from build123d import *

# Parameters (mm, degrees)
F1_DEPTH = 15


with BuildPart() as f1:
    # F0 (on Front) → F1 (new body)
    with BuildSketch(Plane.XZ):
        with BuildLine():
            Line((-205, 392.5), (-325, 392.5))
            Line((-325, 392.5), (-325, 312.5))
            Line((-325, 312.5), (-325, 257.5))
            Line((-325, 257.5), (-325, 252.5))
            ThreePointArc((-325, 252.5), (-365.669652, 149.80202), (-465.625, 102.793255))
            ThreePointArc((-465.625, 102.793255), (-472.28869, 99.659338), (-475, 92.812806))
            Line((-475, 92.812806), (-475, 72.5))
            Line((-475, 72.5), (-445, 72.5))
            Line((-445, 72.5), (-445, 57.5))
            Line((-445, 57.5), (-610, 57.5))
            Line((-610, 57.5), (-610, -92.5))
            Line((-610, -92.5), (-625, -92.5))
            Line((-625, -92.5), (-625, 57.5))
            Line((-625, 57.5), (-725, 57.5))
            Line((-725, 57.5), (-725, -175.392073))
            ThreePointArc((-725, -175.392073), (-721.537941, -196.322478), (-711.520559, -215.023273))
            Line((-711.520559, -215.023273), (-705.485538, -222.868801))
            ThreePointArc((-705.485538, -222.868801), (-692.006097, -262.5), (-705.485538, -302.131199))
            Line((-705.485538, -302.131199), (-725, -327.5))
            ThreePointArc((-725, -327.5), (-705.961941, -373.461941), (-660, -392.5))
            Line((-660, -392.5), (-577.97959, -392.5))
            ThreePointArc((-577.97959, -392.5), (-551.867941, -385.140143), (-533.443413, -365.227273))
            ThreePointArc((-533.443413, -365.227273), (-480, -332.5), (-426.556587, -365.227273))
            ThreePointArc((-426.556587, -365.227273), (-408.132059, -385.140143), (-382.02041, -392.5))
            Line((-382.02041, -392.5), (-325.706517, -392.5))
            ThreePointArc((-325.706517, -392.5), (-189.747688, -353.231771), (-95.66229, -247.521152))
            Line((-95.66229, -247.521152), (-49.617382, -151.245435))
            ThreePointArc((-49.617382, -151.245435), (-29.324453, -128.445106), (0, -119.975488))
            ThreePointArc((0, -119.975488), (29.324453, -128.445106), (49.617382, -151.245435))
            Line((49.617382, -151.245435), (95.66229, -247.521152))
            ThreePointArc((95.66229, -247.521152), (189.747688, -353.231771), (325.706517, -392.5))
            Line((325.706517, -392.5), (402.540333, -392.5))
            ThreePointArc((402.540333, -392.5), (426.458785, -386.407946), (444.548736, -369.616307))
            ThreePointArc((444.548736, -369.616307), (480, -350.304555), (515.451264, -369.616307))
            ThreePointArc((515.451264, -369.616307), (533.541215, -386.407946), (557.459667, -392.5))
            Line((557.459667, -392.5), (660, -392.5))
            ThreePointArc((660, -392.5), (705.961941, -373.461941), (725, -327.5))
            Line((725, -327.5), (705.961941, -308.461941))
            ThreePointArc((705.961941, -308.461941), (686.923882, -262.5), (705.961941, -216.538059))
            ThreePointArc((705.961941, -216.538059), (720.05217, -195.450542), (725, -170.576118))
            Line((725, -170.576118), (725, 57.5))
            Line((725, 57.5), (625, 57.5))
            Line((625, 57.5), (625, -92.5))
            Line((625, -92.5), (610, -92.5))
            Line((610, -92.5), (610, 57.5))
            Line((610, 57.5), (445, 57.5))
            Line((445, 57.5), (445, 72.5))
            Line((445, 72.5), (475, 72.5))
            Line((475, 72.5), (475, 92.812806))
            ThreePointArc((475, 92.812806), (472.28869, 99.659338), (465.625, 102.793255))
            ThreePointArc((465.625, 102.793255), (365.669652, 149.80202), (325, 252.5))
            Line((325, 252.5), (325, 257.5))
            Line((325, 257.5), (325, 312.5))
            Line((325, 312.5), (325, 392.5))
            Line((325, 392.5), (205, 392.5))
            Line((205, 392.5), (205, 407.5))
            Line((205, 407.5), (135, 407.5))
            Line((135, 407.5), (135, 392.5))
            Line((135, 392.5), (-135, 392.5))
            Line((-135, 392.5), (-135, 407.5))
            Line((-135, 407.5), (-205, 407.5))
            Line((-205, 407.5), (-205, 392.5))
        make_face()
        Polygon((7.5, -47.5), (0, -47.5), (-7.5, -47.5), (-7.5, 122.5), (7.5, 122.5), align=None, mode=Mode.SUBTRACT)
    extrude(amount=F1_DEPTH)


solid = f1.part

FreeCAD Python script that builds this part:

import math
import FreeCAD as App
import Part
import Sketcher

V = App.Vector
Q = App.Units.Quantity


def add_polygon(sketch, points):
    """Adds a closed chain of lines whose ends are joined by coincident constraints."""
    first, n = sketch.GeometryCount, len(points)
    for a, b in zip(points, points[1:] + points[:1]):
        sketch.addGeometry(Part.LineSegment(App.Vector(*a, 0), App.Vector(*b, 0)), False)
    for i in range(n):
        sketch.addConstraint(Sketcher.Constraint("Coincident", first + i, 2, first + (i + 1) % n, 1))

doc = App.newDocument("Part")
params = doc.addObject("Spreadsheet::Sheet", "Params")
for row, (alias, value) in enumerate([
    ("sketch1_radius", "150 mm"),
    ("sketch1_radius2", "9.999999 mm"),
    ("sketch1_radius3", "64.999999 mm"),
    ("sketch1_radius4", "49.999999 mm"),
    ("sketch1_radius5", "60 mm"),
    ("pad1_length", "15 mm"),
], start=1):
    params.set(f"A{row}", alias)
    params.set(f"B{row}", "=" + value)
    params.setAlias(f"B{row}", alias)

body = doc.addObject("PartDesign::Body", "Body")

# Sketch on XZ plane
sketch1 = body.newObject("Sketcher::SketchObject", "Sketch")
sketch1.AttachmentSupport = (doc.getObject("XZ_Plane"), [""])
sketch1.MapMode = "FlatFace"
sketch1.addGeometry(Part.LineSegment(V(-205, 392.5, 0), V(-325, 392.5, 0)), False)  # 0
sketch1.addGeometry(Part.LineSegment(V(-325, 392.5, 0), V(-325, 252.5, 0)), False)  # 1
sketch1.addGeometry(Part.ArcOfCircle(Part.Circle(V(-475, 252.5, 0), V(0, 0, 1), 150), math.radians(-86.416678), math.radians(0)), False)  # 2
sketch1.addGeometry(Part.ArcOfCircle(Part.Circle(V(-465.000001, 92.812807, 0), V(0, 0, 1), 9.999999), math.radians(93.583314), math.radians(180.000004)), False)  # 3
sketch1.addGeometry(Part.LineSegment(V(-475, 92.812806, 0), V(-475, 72.5, 0)), False)  # 4
sketch1.addGeometry(Part.LineSegment(V(-475, 72.5, 0), V(-445, 72.5, 0)), False)  # 5
sketch1.addGeometry(Part.LineSegment(V(-445, 72.5, 0), V(-445, 57.5, 0)), False)  # 6
sketch1.addGeometry(Part.LineSegment(V(-445, 57.5, 0), V(-610, 57.5, 0)), False)  # 7
sketch1.addGeometry(Part.LineSegment(V(-610, 57.5, 0), V(-610, -92.5, 0)), False)  # 8
sketch1.addGeometry(Part.LineSegment(V(-610, -92.5, 0), V(-625, -92.5, 0)), False)  # 9
sketch1.addGeometry(Part.LineSegment(V(-625, -92.5, 0), V(-625, 57.5, 0)), False)  # 10
sketch1.addGeometry(Part.LineSegment(V(-625, 57.5, 0), V(-725, 57.5, 0)), False)  # 11
sketch1.addGeometry(Part.LineSegment(V(-725, 57.5, 0), V(-725, -175.392073, 0)), False)  # 12
sketch1.addGeometry(Part.ArcOfCircle(Part.Circle(V(-660.000004, -175.392075, 0), V(0, 0, 1), 64.999996), math.radians(179.999999), math.radians(217.568594)), False)  # 13
sketch1.addGeometry(Part.LineSegment(V(-711.520559, -215.023273, 0), V(-705.485538, -222.868801, 0)), False)  # 14
sketch1.addGeometry(Part.ArcOfCircle(Part.Circle(V(-757.006095, -262.5, 0), V(0, 0, 1), 64.999998), math.radians(-37.568593), math.radians(37.568593)), False)  # 15
sketch1.addGeometry(Part.LineSegment(V(-705.485538, -302.131199, 0), V(-725, -327.5, 0)), False)  # 16
sketch1.addGeometry(Part.ArcOfCircle(Part.Circle(V(-660.000001, -327.500001, 0), V(0, 0, 1), 64.999999), math.radians(179.999999), math.radians(270.000001)), False)  # 17
sketch1.addGeometry(Part.LineSegment(V(-660, -392.5, 0), V(-577.97959, -392.5, 0)), False)  # 18
sketch1.addGeometry(Part.ArcOfCircle(Part.Circle(V(-577.97959, -342.500001, 0), V(0, 0, 1), 49.999999), math.radians(-90), math.radians(-27.035692)), False)  # 19
sketch1.addGeometry(Part.ArcOfCircle(Part.Circle(V(-480, -392.5, 0), V(0, 0, 1), 60), math.radians(27.035692), math.radians(152.964308)), False)  # 20
sketch1.addGeometry(Part.ArcOfCircle(Part.Circle(V(-382.02041, -342.500001, 0), V(0, 0, 1), 49.999999), math.radians(-152.964308), math.radians(-90)), False)  # 21
sketch1.addGeometry(Part.LineSegment(V(-382.02041, -392.5, 0), V(-325.706517, -392.5, 0)), False)  # 22
sketch1.addGeometry(Part.ArcOfCircle(Part.Circle(V(-325.706516, -137.5, 0), V(0, 0, 1), 255), math.radians(-90), math.radians(-25.559965)), False)  # 23
sketch1.addGeometry(Part.LineSegment(V(-95.66229, -247.521152, 0), V(-49.617382, -151.245435, 0)), False)  # 24
sketch1.addGeometry(Part.ArcOfCircle(Part.Circle(V(0, -174.975489, 0), V(0, 0, 1), 55.000001), math.radians(90), math.radians(154.440034)), False)  # 25
sketch1.addGeometry(Part.ArcOfCircle(Part.Circle(V(0, -174.975489, 0), V(0, 0, 1), 55.000001), math.radians(25.559966), math.radians(90)), False)  # 26
sketch1.addGeometry(Part.LineSegment(V(49.617382, -151.245435, 0), V(95.66229, -247.521152, 0)), False)  # 27
sketch1.addGeometry(Part.ArcOfCircle(Part.Circle(V(325.706516, -137.5, 0), V(0, 0, 1), 255), math.radians(-154.440035), math.radians(-90)), False)  # 28
sketch1.addGeometry(Part.LineSegment(V(325.706517, -392.5, 0), V(402.540333, -392.5, 0)), False)  # 29
sketch1.addGeometry(Part.ArcOfCircle(Part.Circle(V(402.540335, -342.500004, 0), V(0, 0, 1), 49.999996), math.radians(-90.000003), math.radians(-32.842128)), False)  # 30
sketch1.addGeometry(Part.ArcOfCircle(Part.Circle(V(480, -392.499999, 0), V(0, 0, 1), 42.195444), math.radians(32.842129), math.radians(147.157871)), False)  # 31
sketch1.addGeometry(Part.ArcOfCircle(Part.Circle(V(557.459665, -342.500004, 0), V(0, 0, 1), 49.999996), math.radians(-147.157872), math.radians(-89.999997)), False)  # 32
sketch1.addGeometry(Part.LineSegment(V(557.459667, -392.5, 0), V(660, -392.5, 0)), False)  # 33
sketch1.addGeometry(Part.ArcOfCircle(Part.Circle(V(660.000001, -327.500001, 0), V(0, 0, 1), 64.999999), math.radians(-90.000001), math.radians(0.000001)), False)  # 34
sketch1.addGeometry(Part.LineSegment(V(725, -327.5, 0), V(705.961941, -308.461941, 0)), False)  # 35
sketch1.addGeometry(Part.ArcOfCircle(Part.Circle(V(751.923883, -262.5, 0), V(0, 0, 1), 65.000001), math.radians(135.000001), math.radians(224.999999)), False)  # 36
sketch1.addGeometry(Part.ArcOfCircle(Part.Circle(V(660.000006, -170.576121, 0), V(0, 0, 1), 64.999994), math.radians(-45.000002), math.radians(0.000003)), False)  # 37
sketch1.addGeometry(Part.LineSegment(V(725, -170.576118, 0), V(725, 57.5, 0)), False)  # 38
sketch1.addGeometry(Part.LineSegment(V(725, 57.5, 0), V(625, 57.5, 0)), False)  # 39
sketch1.addGeometry(Part.LineSegment(V(625, 57.5, 0), V(625, -92.5, 0)), False)  # 40
sketch1.addGeometry(Part.LineSegment(V(625, -92.5, 0), V(610, -92.5, 0)), False)  # 41
sketch1.addGeometry(Part.LineSegment(V(610, -92.5, 0), V(610, 57.5, 0)), False)  # 42
sketch1.addGeometry(Part.LineSegment(V(610, 57.5, 0), V(445, 57.5, 0)), False)  # 43
sketch1.addGeometry(Part.LineSegment(V(445, 57.5, 0), V(445, 72.5, 0)), False)  # 44
sketch1.addGeometry(Part.LineSegment(V(445, 72.5, 0), V(475, 72.5, 0)), False)  # 45
sketch1.addGeometry(Part.LineSegment(V(475, 72.5, 0), V(475, 92.812806, 0)), False)  # 46
sketch1.addGeometry(Part.ArcOfCircle(Part.Circle(V(465.000001, 92.812807, 0), V(0, 0, 1), 9.999999), math.radians(-0.000004), math.radians(86.416686)), False)  # 47
sketch1.addGeometry(Part.ArcOfCircle(Part.Circle(V(475, 252.5, 0), V(0, 0, 1), 150), math.radians(180), math.radians(266.416678)), False)  # 48
sketch1.addGeometry(Part.LineSegment(V(325, 252.5, 0), V(325, 392.5, 0)), False)  # 49
sketch1.addGeometry(Part.LineSegment(V(325, 392.5, 0), V(205, 392.5, 0)), False)  # 50
sketch1.addGeometry(Part.LineSegment(V(205, 392.5, 0), V(205, 407.5, 0)), False)  # 51
sketch1.addGeometry(Part.LineSegment(V(205, 407.5, 0), V(135, 407.5, 0)), False)  # 52
sketch1.addGeometry(Part.LineSegment(V(135, 407.5, 0), V(135, 392.5, 0)), False)  # 53
sketch1.addGeometry(Part.LineSegment(V(135, 392.5, 0), V(-135, 392.5, 0)), False)  # 54
sketch1.addGeometry(Part.LineSegment(V(-135, 392.5, 0), V(-135, 407.5, 0)), False)  # 55
sketch1.addGeometry(Part.LineSegment(V(-135, 407.5, 0), V(-205, 407.5, 0)), False)  # 56
sketch1.addGeometry(Part.LineSegment(V(-205, 407.5, 0), V(-205, 392.5, 0)), False)  # 57
add_polygon(sketch1, [(7.5, 122.5), (7.5, -47.5), (-7.5, -47.5), (-7.5, 122.5)])  # lines 58-61
sketch1.addConstraint(Sketcher.Constraint("Coincident", 0, 2, 1, 1))
sketch1.addConstraint(Sketcher.Constraint("Tangent", 1, 2, 2, 2))
sketch1.addConstraint(Sketcher.Constraint("Tangent", 2, 1, 3, 1))
sketch1.addConstraint(Sketcher.Constraint("Tangent", 3, 2, 4, 1))
sketch1.addConstraint(Sketcher.Constraint("Coincident", 4, 2, 5, 1))
sketch1.addConstraint(Sketcher.Constraint("Coincident", 5, 2, 6, 1))
sketch1.addConstraint(Sketcher.Constraint("Coincident", 6, 2, 7, 1))
sketch1.addConstraint(Sketcher.Constraint("Coincident", 7, 2, 8, 1))
sketch1.addConstraint(Sketcher.Constraint("Coincident", 8, 2, 9, 1))
sketch1.addConstraint(Sketcher.Constraint("Coincident", 9, 2, 10, 1))
sketch1.addConstraint(Sketcher.Constraint("Coincident", 10, 2, 11, 1))
sketch1.addConstraint(Sketcher.Constraint("Coincident", 11, 2, 12, 1))
sketch1.addConstraint(Sketcher.Constraint("Tangent", 12, 2, 13, 1))
sketch1.addConstraint(Sketcher.Constraint("Tangent", 13, 2, 14, 1))
sketch1.addConstraint(Sketcher.Constraint("Tangent", 14, 2, 15, 2))
sketch1.addConstraint(Sketcher.Constraint("Tangent", 15, 1, 16, 1))
sketch1.addConstraint(Sketcher.Constraint("Coincident", 16, 2, 17, 1))
sketch1.addConstraint(Sketcher.Constraint("Tangent", 17, 2, 18, 1))
sketch1.addConstraint(Sketcher.Constraint("Tangent", 18, 2, 19, 1))
sketch1.addConstraint(Sketcher.Constraint("Tangent", 19, 2, 20, 2))
sketch1.addConstraint(Sketcher.Constraint("Tangent", 20, 1, 21, 1))
sketch1.addConstraint(Sketcher.Constraint("Tangent", 21, 2, 22, 1))
sketch1.addConstraint(Sketcher.Constraint("Tangent", 22, 2, 23, 1))
sketch1.addConstraint(Sketcher.Constraint("Tangent", 23, 2, 24, 1))
sketch1.addConstraint(Sketcher.Constraint("Tangent", 24, 2, 25, 2))
sketch1.addConstraint(Sketcher.Constraint("Tangent", 25, 1, 26, 2))
sketch1.addConstraint(Sketcher.Constraint("Tangent", 26, 1, 27, 1))
sketch1.addConstraint(Sketcher.Constraint("Tangent", 27, 2, 28, 1))
sketch1.addConstraint(Sketcher.Constraint("Tangent", 28, 2, 29, 1))
sketch1.addConstraint(Sketcher.Constraint("Tangent", 29, 2, 30, 1))
sketch1.addConstraint(Sketcher.Constraint("Tangent", 30, 2, 31, 2))
sketch1.addConstraint(Sketcher.Constraint("Tangent", 31, 1, 32, 1))
sketch1.addConstraint(Sketcher.Constraint("Tangent", 32, 2, 33, 1))
sketch1.addConstraint(Sketcher.Constraint("Tangent", 33, 2, 34, 1))
sketch1.addConstraint(Sketcher.Constraint("Coincident", 34, 2, 35, 1))
sketch1.addConstraint(Sketcher.Constraint("Tangent", 35, 2, 36, 2))
sketch1.addConstraint(Sketcher.Constraint("Tangent", 36, 1, 37, 1))
sketch1.addConstraint(Sketcher.Constraint("Tangent", 37, 2, 38, 1))
sketch1.addConstraint(Sketcher.Constraint("Coincident", 38, 2, 39, 1))
sketch1.addConstraint(Sketcher.Constraint("Coincident", 39, 2, 40, 1))
sketch1.addConstraint(Sketcher.Constraint("Coincident", 40, 2, 41, 1))
sketch1.addConstraint(Sketcher.Constraint("Coincident", 41, 2, 42, 1))
sketch1.addConstraint(Sketcher.Constraint("Coincident", 42, 2, 43, 1))
sketch1.addConstraint(Sketcher.Constraint("Coincident", 43, 2, 44, 1))
sketch1.addConstraint(Sketcher.Constraint("Coincident", 44, 2, 45, 1))
sketch1.addConstraint(Sketcher.Constraint("Coincident", 45, 2, 46, 1))
sketch1.addConstraint(Sketcher.Constraint("Tangent", 46, 2, 47, 1))
sketch1.addConstraint(Sketcher.Constraint("Tangent", 47, 2, 48, 2))
sketch1.addConstraint(Sketcher.Constraint("Tangent", 48, 1, 49, 1))
sketch1.addConstraint(Sketcher.Constraint("Coincident", 49, 2, 50, 1))
sketch1.addConstraint(Sketcher.Constraint("Coincident", 50, 2, 51, 1))
sketch1.addConstraint(Sketcher.Constraint("Coincident", 51, 2, 52, 1))
sketch1.addConstraint(Sketcher.Constraint("Coincident", 52, 2, 53, 1))
sketch1.addConstraint(Sketcher.Constraint("Coincident", 53, 2, 54, 1))
sketch1.addConstraint(Sketcher.Constraint("Coincident", 54, 2, 55, 1))
sketch1.addConstraint(Sketcher.Constraint("Coincident", 55, 2, 56, 1))
sketch1.addConstraint(Sketcher.Constraint("Coincident", 56, 2, 57, 1))
sketch1.addConstraint(Sketcher.Constraint("Coincident", 57, 2, 0, 1))
sketch1.addConstraint(Sketcher.Constraint("Horizontal", 0))
sketch1.addConstraint(Sketcher.Constraint("Vertical", 1))
sketch1.addConstraint(Sketcher.Constraint("Vertical", 4))
sketch1.addConstraint(Sketcher.Constraint("Horizontal", 5))
sketch1.addConstraint(Sketcher.Constraint("Vertical", 6))
sketch1.addConstraint(Sketcher.Constraint("Horizontal", 7))
sketch1.addConstraint(Sketcher.Constraint("Vertical", 8))
sketch1.addConstraint(Sketcher.Constraint("Horizontal", 9))
sketch1.addConstraint(Sketcher.Constraint("Vertical", 10))
sketch1.addConstraint(Sketcher.Constraint("Horizontal", 11))
sketch1.addConstraint(Sketcher.Constraint("Vertical", 12))
sketch1.addConstraint(Sketcher.Constraint("Horizontal", 18))
sketch1.addConstraint(Sketcher.Constraint("Horizontal", 22))
sketch1.addConstraint(Sketcher.Constraint("Horizontal", 29))
sketch1.addConstraint(Sketcher.Constraint("Horizontal", 33))
sketch1.addConstraint(Sketcher.Constraint("Vertical", 38))
sketch1.addConstraint(Sketcher.Constraint("Horizontal", 39))
sketch1.addConstraint(Sketcher.Constraint("Vertical", 40))
sketch1.addConstraint(Sketcher.Constraint("Horizontal", 41))
sketch1.addConstraint(Sketcher.Constraint("Vertical", 42))
sketch1.addConstraint(Sketcher.Constraint("Horizontal", 43))
sketch1.addConstraint(Sketcher.Constraint("Vertical", 44))
sketch1.addConstraint(Sketcher.Constraint("Horizontal", 45))
sketch1.addConstraint(Sketcher.Constraint("Vertical", 46))
sketch1.addConstraint(Sketcher.Constraint("Vertical", 49))
sketch1.addConstraint(Sketcher.Constraint("Horizontal", 50))
sketch1.addConstraint(Sketcher.Constraint("Vertical", 51))
sketch1.addConstraint(Sketcher.Constraint("Horizontal", 52))
sketch1.addConstraint(Sketcher.Constraint("Vertical", 53))
sketch1.addConstraint(Sketcher.Constraint("Horizontal", 54))
sketch1.addConstraint(Sketcher.Constraint("Vertical", 55))
sketch1.addConstraint(Sketcher.Constraint("Horizontal", 56))
sketch1.addConstraint(Sketcher.Constraint("Vertical", 57))
sketch1.addConstraint(Sketcher.Constraint("Vertical", 58))
sketch1.addConstraint(Sketcher.Constraint("Horizontal", 59))
sketch1.addConstraint(Sketcher.Constraint("Vertical", 60))
sketch1.addConstraint(Sketcher.Constraint("Horizontal", 61))
sketch1.addConstraint(Sketcher.Constraint("Equal", 13, 15))
sketch1.addConstraint(Sketcher.Constraint("Equal", 15, 17))
sketch1.addConstraint(Sketcher.Constraint("Equal", 19, 21))
sketch1.addConstraint(Sketcher.Constraint("Equal", 25, 26))
sketch1.addConstraint(Sketcher.Constraint("Equal", 23, 28))
sketch1.addConstraint(Sketcher.Constraint("Equal", 30, 32))
sketch1.addConstraint(Sketcher.Constraint("Equal", 17, 34))
sketch1.addConstraint(Sketcher.Constraint("Equal", 34, 36))
sketch1.addConstraint(Sketcher.Constraint("Equal", 3, 47))
sketch1.addConstraint(Sketcher.Constraint("Equal", 2, 48))
sketch1.addConstraint(Sketcher.Constraint("Symmetric", 23, 3, 28, 3, -2))
sketch1.addConstraint(Sketcher.Constraint("Symmetric", 20, 3, 31, 3, -2))
sketch1.addConstraint(Sketcher.Constraint("Symmetric", 17, 3, 34, 3, -2))
sketch1.addConstraint(Sketcher.Constraint("Symmetric", 3, 3, 47, 3, -2))
sketch1.addConstraint(Sketcher.Constraint("Symmetric", 11, 2, 38, 2, -2))
sketch1.addConstraint(Sketcher.Constraint("Symmetric", 9, 2, 40, 2, -2))
sketch1.addConstraint(Sketcher.Constraint("Symmetric", 7, 2, 42, 2, -2))
sketch1.addConstraint(Sketcher.Constraint("Symmetric", 5, 2, 44, 2, -2))
sketch1.addConstraint(Sketcher.Constraint("Symmetric", 0, 2, 49, 2, -2))
sketch1.addConstraint(Sketcher.Constraint("Symmetric", 52, 2, 55, 2, -2))
sketch1.addConstraint(Sketcher.Constraint("PointOnObject", 25, 3, -2))
sketch1.addConstraint(Sketcher.Constraint("PointOnObject", 25, 1, -2))
sketch1.addConstraint(Sketcher.Constraint("Horizontal", 19, 3, 21, 3))
sketch1.addConstraint(Sketcher.Constraint("Horizontal", 15, 3, 36, 3))
sketch1.addConstraint(Sketcher.Constraint("Horizontal", 7, 2, 10, 2))
sketch1.addConstraint(Sketcher.Constraint("Horizontal", 34, 3, 16, 2))
sketch1.addConstraint(Sketcher.Constraint("Horizontal", 31, 3, 17, 2))
sketch1.addConstraint(Sketcher.Constraint("Horizontal", 16, 2, 34, 2))
sketch1.addConstraint(Sketcher.Constraint("Horizontal", 50, 2, 53, 2))
sketch1.addConstraint(Sketcher.Constraint("Vertical", 2, 3, 3, 2))
sketch1.addConstraint(Sketcher.Constraint("Vertical", 14, 2, 15, 1))
sketch1.addConstraint(Sketcher.Constraint("Vertical", 12, 2, 16, 2))
sketch1.addConstraint(Sketcher.Constraint("Vertical", 35, 2, 36, 1))
sketch1.addConstraint(Sketcher.Constraint("Equal", 0, 50))
sketch1.addConstraint(Sketcher.Constraint("Equal", 41, 59))
sketch1.addConstraint(Sketcher.Constraint("Equal", 61, 6))
sketch1.addConstraint(Sketcher.Constraint("Equal", 44, 51))
sketch1.addConstraint(Sketcher.Constraint("Radius", 2, Q("150 mm")))
sketch1.addConstraint(Sketcher.Constraint("Radius", 3, Q("9.999999 mm")))
sketch1.addConstraint(Sketcher.Constraint("Radius", 17, Q("64.999999 mm")))
sketch1.addConstraint(Sketcher.Constraint("Radius", 19, Q("49.999999 mm")))
sketch1.addConstraint(Sketcher.Constraint("Radius", 20, Q("60 mm")))
sketch1.addConstraint(Sketcher.Constraint("Radius", 23, Q("255 mm")))
sketch1.addConstraint(Sketcher.Constraint("Radius", 25, Q("55.000001 mm")))
sketch1.addConstraint(Sketcher.Constraint("DistanceX", 0, 2, 0, 1, Q("120 mm")))
sketch1.addConstraint(Sketcher.Constraint("DistanceX", 5, 1, 5, 2, Q("30 mm")))
sketch1.addConstraint(Sketcher.Constraint("DistanceX", 7, 2, 7, 1, Q("165 mm")))
sketch1.addConstraint(Sketcher.Constraint("DistanceX", 9, 2, 9, 1, Q("15 mm")))
sketch1.addConstraint(Sketcher.Constraint("DistanceX", 11, 2, 11, 1, Q("100 mm")))
sketch1.addConstraint(Sketcher.Constraint("DistanceX", 52, 2, 52, 1, Q("70 mm")))
sketch1.addConstraint(Sketcher.Constraint("DistanceX", 54, 2, 54, 1, Q("270 mm")))
sketch1.addConstraint(Sketcher.Constraint("DistanceY", 1, 2, 1, 1, Q("140 mm")))
sketch1.addConstraint(Sketcher.Constraint("DistanceY", 8, 2, 8, 1, Q("150 mm")))
sketch1.addConstraint(Sketcher.Constraint("DistanceY", 58, 2, 58, 1, Q("170 mm")))
sketch1.addConstraint(Sketcher.Constraint("Angle", 35, Q("135 deg")))
sketch1.addConstraint(Sketcher.Constraint("DistanceX", 20, 3, -1, 1, Q("480 mm")))
sketch1.addConstraint(Sketcher.Constraint("DistanceY", -1, 1, 2, 3, Q("252.5 mm")))
sketch1.addConstraint(Sketcher.Constraint("DistanceY", 15, 3, -1, 1, Q("262.5 mm")))
sketch1.addConstraint(Sketcher.Constraint("DistanceY", 17, 3, -1, 1, Q("327.500001 mm")))
sketch1.addConstraint(Sketcher.Constraint("DistanceY", -1, 1, 4, 2, Q("72.5 mm")))
sketch1.addConstraint(Sketcher.Constraint("DistanceX", -1, 1, 58, 2, Q("7.5 mm")))
sketch1.addConstraint(Sketcher.Constraint("DistanceY", 58, 2, -1, 1, Q("47.5 mm")))
sketch1.addConstraint(Sketcher.Constraint("Radius", 30, Q("49.999996 mm")))
sketch1.addConstraint(Sketcher.Constraint("Radius", 31, Q("42.195444 mm")))
sketch1.addConstraint(Sketcher.Constraint("DistanceY", 14, 2, -1, 1, Q("222.868801 mm")))
sketch1.addConstraint(Sketcher.Constraint("DistanceX", 22, 1, 22, 2, Q("56.313893 mm")))
sketch1.addConstraint(Sketcher.Constraint("DistanceY", 25, 3, -1, 1, Q("174.975489 mm")))
sketch1.setExpression("Constraints[136]", "Params.sketch1_radius")
sketch1.setExpression("Constraints[137]", "Params.sketch1_radius2")
sketch1.setExpression("Constraints[138]", "Params.sketch1_radius3")
sketch1.setExpression("Constraints[139]", "Params.sketch1_radius4")
sketch1.setExpression("Constraints[140]", "Params.sketch1_radius5")
pad1 = body.newObject("PartDesign::Pad", "Pad")
pad1.Profile = sketch1
pad1.setExpression("Length", "Params.pad1_length")

doc.recompute()
